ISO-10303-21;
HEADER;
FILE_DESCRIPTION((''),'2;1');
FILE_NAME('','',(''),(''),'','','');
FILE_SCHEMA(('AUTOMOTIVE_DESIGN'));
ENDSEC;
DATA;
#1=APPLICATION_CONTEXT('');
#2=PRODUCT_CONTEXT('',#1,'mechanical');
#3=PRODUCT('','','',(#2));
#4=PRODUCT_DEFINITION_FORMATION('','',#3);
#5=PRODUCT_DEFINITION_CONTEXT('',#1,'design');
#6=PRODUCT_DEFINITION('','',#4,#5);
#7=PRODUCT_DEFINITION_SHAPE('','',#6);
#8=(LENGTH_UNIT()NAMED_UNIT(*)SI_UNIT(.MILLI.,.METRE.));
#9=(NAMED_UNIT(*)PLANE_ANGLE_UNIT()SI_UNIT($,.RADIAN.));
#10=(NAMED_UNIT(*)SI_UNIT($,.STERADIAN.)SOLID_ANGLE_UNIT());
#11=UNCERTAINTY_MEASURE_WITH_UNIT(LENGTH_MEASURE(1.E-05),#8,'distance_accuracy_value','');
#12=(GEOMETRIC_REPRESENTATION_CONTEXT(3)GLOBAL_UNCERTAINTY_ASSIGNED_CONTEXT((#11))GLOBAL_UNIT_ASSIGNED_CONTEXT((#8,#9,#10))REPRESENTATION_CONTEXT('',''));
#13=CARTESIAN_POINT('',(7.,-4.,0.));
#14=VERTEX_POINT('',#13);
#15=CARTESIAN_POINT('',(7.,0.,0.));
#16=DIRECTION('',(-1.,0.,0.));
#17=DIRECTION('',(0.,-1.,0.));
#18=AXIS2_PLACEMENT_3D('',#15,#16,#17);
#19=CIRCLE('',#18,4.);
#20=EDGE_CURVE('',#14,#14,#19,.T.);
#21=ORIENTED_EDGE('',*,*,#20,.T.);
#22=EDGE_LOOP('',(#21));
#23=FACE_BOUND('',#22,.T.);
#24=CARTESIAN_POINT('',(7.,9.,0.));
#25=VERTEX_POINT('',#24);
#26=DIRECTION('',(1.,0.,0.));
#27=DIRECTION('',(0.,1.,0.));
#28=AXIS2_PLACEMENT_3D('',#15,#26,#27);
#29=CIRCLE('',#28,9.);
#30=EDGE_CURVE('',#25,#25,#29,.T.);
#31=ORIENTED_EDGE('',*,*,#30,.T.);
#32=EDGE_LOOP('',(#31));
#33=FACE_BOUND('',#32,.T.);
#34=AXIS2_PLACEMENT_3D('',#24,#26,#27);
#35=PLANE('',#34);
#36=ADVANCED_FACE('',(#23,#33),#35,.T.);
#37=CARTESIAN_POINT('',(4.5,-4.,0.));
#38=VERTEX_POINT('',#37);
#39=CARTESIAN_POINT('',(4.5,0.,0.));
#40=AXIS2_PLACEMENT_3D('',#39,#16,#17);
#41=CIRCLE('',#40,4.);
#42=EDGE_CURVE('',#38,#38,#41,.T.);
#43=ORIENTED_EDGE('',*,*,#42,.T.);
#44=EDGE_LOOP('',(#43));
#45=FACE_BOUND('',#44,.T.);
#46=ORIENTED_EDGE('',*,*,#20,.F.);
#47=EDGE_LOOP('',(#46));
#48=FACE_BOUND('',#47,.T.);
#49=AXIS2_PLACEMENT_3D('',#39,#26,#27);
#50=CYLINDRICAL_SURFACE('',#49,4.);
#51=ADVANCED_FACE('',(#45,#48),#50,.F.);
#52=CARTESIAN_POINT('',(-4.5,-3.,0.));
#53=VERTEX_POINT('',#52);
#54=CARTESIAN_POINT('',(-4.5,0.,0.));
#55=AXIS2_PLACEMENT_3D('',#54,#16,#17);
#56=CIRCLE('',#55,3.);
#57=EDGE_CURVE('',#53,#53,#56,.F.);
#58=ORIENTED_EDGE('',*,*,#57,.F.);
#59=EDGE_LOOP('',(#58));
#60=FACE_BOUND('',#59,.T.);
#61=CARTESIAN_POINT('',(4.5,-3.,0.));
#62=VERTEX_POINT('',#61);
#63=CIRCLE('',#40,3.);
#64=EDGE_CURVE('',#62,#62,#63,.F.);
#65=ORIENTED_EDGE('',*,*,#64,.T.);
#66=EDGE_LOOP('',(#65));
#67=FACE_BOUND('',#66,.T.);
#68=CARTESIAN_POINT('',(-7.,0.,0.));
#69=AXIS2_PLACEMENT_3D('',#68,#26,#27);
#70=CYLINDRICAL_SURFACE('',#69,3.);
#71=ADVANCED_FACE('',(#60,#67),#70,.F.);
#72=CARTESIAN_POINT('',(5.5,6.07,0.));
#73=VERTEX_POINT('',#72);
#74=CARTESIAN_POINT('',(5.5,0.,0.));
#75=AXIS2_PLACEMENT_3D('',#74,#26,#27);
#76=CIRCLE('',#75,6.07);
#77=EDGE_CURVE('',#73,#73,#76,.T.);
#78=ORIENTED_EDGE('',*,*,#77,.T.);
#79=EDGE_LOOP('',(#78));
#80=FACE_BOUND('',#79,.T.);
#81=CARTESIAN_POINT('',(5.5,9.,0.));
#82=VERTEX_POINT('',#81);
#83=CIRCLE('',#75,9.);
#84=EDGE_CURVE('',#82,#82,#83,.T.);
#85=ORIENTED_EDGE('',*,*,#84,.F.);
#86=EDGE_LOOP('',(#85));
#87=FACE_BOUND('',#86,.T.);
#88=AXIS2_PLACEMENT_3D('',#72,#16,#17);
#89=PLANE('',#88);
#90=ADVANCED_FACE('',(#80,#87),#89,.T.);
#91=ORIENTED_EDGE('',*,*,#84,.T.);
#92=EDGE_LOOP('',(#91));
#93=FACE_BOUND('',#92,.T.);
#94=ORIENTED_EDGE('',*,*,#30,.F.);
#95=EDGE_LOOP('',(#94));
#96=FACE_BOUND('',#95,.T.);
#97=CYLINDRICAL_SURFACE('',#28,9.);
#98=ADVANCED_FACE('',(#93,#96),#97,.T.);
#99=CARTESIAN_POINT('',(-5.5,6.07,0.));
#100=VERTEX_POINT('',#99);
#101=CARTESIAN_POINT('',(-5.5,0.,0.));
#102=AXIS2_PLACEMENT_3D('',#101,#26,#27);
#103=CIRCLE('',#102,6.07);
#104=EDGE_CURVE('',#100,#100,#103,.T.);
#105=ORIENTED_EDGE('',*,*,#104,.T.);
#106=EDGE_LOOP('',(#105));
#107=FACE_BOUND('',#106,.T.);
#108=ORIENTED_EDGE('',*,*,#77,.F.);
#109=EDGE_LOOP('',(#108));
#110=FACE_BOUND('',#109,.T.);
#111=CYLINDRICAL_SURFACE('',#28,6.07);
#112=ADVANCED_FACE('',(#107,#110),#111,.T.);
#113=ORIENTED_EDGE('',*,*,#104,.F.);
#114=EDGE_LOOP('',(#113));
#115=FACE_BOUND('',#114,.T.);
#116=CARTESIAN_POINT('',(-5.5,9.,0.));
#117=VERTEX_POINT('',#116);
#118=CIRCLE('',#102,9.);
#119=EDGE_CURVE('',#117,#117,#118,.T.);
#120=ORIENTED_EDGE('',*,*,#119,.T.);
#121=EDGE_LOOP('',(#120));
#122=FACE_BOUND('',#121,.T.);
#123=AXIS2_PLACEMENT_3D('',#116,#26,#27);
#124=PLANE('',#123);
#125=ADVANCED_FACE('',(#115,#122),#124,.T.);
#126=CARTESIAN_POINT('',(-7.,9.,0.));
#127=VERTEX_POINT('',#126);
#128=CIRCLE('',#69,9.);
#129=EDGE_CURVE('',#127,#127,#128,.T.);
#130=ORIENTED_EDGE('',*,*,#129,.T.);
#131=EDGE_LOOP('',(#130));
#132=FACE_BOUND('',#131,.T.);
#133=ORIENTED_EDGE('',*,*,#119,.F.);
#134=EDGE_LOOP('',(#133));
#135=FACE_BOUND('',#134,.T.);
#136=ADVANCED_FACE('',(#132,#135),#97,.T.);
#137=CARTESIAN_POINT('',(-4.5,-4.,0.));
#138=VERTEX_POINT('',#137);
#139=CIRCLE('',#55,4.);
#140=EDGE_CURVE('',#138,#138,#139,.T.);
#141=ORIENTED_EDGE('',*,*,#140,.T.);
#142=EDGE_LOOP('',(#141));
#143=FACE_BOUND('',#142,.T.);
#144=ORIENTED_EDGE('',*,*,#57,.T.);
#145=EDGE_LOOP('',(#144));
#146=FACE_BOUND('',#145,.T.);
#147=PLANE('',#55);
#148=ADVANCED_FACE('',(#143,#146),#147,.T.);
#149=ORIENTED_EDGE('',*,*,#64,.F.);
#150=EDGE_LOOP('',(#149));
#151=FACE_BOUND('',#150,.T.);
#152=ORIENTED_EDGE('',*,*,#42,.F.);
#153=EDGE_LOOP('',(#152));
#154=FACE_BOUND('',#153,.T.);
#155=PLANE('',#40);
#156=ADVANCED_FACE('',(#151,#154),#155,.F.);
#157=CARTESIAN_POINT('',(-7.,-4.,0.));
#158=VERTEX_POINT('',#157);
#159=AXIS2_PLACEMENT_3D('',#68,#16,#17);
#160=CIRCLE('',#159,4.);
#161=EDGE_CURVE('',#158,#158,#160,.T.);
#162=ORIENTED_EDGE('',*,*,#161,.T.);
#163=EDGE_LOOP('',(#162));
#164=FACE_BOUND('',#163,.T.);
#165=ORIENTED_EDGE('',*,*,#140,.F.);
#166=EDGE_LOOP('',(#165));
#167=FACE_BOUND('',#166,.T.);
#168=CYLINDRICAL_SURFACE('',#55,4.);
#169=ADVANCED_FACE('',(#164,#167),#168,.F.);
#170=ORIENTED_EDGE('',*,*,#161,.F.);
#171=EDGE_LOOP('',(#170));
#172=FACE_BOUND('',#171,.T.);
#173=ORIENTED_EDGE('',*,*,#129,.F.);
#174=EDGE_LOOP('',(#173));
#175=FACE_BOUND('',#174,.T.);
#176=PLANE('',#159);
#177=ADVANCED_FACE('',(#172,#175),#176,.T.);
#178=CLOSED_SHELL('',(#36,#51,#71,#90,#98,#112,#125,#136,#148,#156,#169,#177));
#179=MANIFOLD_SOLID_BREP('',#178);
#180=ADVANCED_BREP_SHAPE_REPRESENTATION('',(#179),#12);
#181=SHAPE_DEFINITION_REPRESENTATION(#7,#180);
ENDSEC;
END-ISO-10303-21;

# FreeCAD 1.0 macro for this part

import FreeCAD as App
import Part
import Sketcher
from FreeCAD import Vector
Q = App.Units.Quantity


def add_polygon(sketch, points):
    """Adds a closed chain of lines whose ends are joined by coincident constraints."""
    first, n = sketch.GeometryCount, len(points)
    for a, b in zip(points, points[1:] + points[:1]):
        sketch.addGeometry(Part.LineSegment(App.Vector(*a, 0), App.Vector(*b, 0)), False)
    for i in range(n):
        sketch.addConstraint(Sketcher.Constraint("Coincident", first + i, 2, first + (i + 1) % n, 1))

doc = App.newDocument("Part")
params = doc.addObject("Spreadsheet::Sheet", "Params")
for row, (alias, value) in enumerate([
    ("sketch1_width", "14 mm"),
    ("sketch1_width2", "11 mm"),
    ("sketch1_height", "9 mm"),
    ("sketch1_height2", "2.93 mm"),
    ("revolution_angle", "360 deg"),
    ("sketch2_diameter", "6 mm"),
    ("sketch3_diameter", "8 mm"),
    ("pocket2_length", "2.5 mm"),
    ("sketch4_diameter", "8 mm"),
    ("pocket3_length", "2.5 mm"),
], start=1):
    params.set(f"A{row}", alias)
    params.set(f"B{row}", "=" + value)
    params.setAlias(f"B{row}", alias)

body = doc.addObject("PartDesign::Body", "Body")

# Sketch on XY plane
sketch1 = doc.addObject("Sketcher::SketchObject", "Sketch")
body.addObject(sketch1)
sketch1.AttachmentSupport = (doc.XY_Plane, [""])
sketch1.MapMode = "FlatFace"
add_polygon(sketch1, [(-7, 9), (-7, 0), (7, 0), (7, 9), (5.5, 9), (5.5, 6.1), (-5.5, 6.1), (-5.5, 9)])  # lines 0-7
sketch1.addConstraint(Sketcher.Constraint("Vertical", 0))
sketch1.addConstraint(Sketcher.Constraint("Horizontal", 1))
sketch1.addConstraint(Sketcher.Constraint("Vertical", 2))
sketch1.addConstraint(Sketcher.Constraint("Horizontal", 3))
sketch1.addConstraint(Sketcher.Constraint("Vertical", 4))
sketch1.addConstraint(Sketcher.Constraint("Horizontal", 5))
sketch1.addConstraint(Sketcher.Constraint("Vertical", 6))
sketch1.addConstraint(Sketcher.Constraint("Horizontal", 7))
sketch1.addConstraint(Sketcher.Constraint("Symmetric", 0, 2, 1, 2, -1, 1))
sketch1.addConstraint(Sketcher.Constraint("Symmetric", 3, 2, 6, 2, -2))
sketch1.addConstraint(Sketcher.Constraint("DistanceX", 1, 1, 1, 2, Q("14 mm")))
sketch1.addConstraint(Sketcher.Constraint("DistanceX", 5, 2, 5, 1, Q("11 mm")))
sketch1.addConstraint(Sketcher.Constraint("DistanceY", 0, 2, 0, 1, Q("9 mm")))
sketch1.addConstraint(Sketcher.Constraint("DistanceY", 4, 2, 4, 1, Q("2.93 mm")))
sketch1.setExpression("Constraints[18]", "Params.sketch1_width")
sketch1.setExpression("Constraints[19]", "Params.sketch1_width2")
sketch1.setExpression("Constraints[20]", "Params.sketch1_height")
sketch1.setExpression("Constraints[21]", "Params.sketch1_height2")
revolution = doc.addObject("PartDesign::Revolution", "Revolution")
body.addObject(revolution)
revolution.Profile = sketch1
revolution.ReferenceAxis = (sketch1, ["H_Axis"])
revolution.setExpression("Angle", "Params.revolution_angle")

# Sketch on YZ plane
sketch2 = doc.addObject("Sketcher::SketchObject", "Sketch001")
body.addObject(sketch2)
sketch2.AttachmentSupport = (doc.YZ_Plane, [""])
sketch2.MapMode = "FlatFace"
sketch2.AttachmentOffset = App.Placement(Vector(0, 0, 7), App.Rotation())
sketch2.addGeometry(Part.Circle(Vector(0, 0, 0), Vector(0, 0, 1), 3), False)
sketch2.addConstraint(Sketcher.Constraint("Coincident", 0, 3, -1, 1))
sketch2.addConstraint(Sketcher.Constraint("Diameter", 0, Q("6 mm")))
sketch2.setExpression("Constraints[1]", "Params.sketch2_diameter")
pocket1 = doc.addObject("PartDesign::Pocket", "Pocket")
body.addObject(pocket1)
pocket1.Profile = sketch2
pocket1.Type = "ThroughAll"
pocket1.Midplane = True

# Sketch on YZ plane
sketch3 = doc.addObject("Sketcher::SketchObject", "Sketch002")
body.addObject(sketch3)
sketch3.AttachmentSupport = (doc.YZ_Plane, [""])
sketch3.MapMode = "FlatFace"
sketch3.AttachmentOffset = App.Placement(Vector(0, 0, -7), App.Rotation())
sketch3.addGeometry(Part.Circle(Vector(0, 0, 0), Vector(0, 0, 1), 4), False)
sketch3.addConstraint(Sketcher.Constraint("Coincident", 0, 3, -1, 1))
sketch3.addConstraint(Sketcher.Constraint("Diameter", 0, Q("8 mm")))
sketch3.setExpression("Constraints[1]", "Params.sketch3_diameter")
pocket2 = doc.addObject("PartDesign::Pocket", "Pocket001")
body.addObject(pocket2)
pocket2.Profile = sketch3
pocket2.setExpression("Length", "Params.pocket2_length")
pocket2.Reversed = True

# Sketch on YZ plane
sketch4 = doc.addObject("Sketcher::SketchObject", "Sketch003")
body.addObject(sketch4)
sketch4.AttachmentSupport = (doc.YZ_Plane, [""])
sketch4.MapMode = "FlatFace"
sketch4.AttachmentOffset = App.Placement(Vector(0, 0, 4.5), App.Rotation())
sketch4.addGeometry(Part.Circle(Vector(0, 0, 0), Vector(0, 0, 1), 4), False)
sketch4.addConstraint(Sketcher.Constraint("Coincident", 0, 3, -1, 1))
sketch4.addConstraint(Sketcher.Constraint("Diameter", 0, Q("8 mm")))
sketch4.setExpression("Constraints[1]", "Params.sketch4_diameter")
pocket3 = doc.addObject("PartDesign::Pocket", "Pocket002")
body.addObject(pocket3)
pocket3.Profile = sketch4
pocket3.setExpression("Length", "Params.pocket3_length")
pocket3.Reversed = True

doc.recompute()
